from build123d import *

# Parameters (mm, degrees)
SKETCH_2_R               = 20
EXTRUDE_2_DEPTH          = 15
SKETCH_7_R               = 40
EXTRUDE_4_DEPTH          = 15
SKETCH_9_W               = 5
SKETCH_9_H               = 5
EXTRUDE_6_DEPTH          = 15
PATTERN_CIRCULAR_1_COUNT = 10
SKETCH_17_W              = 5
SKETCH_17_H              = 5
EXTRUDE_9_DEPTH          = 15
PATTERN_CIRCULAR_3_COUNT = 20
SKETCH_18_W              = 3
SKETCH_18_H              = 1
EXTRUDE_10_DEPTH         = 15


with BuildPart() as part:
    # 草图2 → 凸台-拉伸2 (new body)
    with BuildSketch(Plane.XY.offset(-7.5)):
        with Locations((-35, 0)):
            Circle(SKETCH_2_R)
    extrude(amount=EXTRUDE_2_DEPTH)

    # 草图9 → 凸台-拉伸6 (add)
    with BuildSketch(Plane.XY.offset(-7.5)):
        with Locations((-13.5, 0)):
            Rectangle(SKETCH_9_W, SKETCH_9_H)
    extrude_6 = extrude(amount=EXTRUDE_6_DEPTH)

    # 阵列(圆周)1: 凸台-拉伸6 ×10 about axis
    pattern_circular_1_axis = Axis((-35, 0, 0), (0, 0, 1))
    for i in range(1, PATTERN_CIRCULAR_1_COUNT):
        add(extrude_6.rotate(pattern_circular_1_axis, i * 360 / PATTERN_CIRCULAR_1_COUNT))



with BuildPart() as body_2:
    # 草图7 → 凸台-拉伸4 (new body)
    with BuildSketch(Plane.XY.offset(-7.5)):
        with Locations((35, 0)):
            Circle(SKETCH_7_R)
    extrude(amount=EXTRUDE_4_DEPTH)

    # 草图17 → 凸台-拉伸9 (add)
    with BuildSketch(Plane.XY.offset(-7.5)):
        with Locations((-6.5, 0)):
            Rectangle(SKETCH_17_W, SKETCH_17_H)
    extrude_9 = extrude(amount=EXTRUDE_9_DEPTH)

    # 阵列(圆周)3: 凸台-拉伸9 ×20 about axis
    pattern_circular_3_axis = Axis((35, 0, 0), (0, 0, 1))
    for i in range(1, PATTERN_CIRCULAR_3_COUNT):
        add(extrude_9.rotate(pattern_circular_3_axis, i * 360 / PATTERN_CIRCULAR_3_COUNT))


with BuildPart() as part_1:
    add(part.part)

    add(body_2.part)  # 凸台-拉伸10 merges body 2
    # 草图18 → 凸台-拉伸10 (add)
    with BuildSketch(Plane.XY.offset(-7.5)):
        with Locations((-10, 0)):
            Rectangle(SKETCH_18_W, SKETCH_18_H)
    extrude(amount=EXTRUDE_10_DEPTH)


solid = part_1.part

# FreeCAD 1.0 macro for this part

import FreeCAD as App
import Part
import Sketcher
from FreeCAD import Vector


def add_polygon(sketch, points):
    """Adds a closed chain of lines whose ends are joined by coincident constraints."""
    first, n = sketch.GeometryCount, len(points)
    for a, b in zip(points, points[1:] + points[:1]):
        sketch.addGeometry(Part.LineSegment(App.Vector(*a, 0), App.Vector(*b, 0)), False)
    for i in range(n):
        sketch.addConstraint(Sketcher.Constraint("Coincident", first + i, 2, first + (i + 1) % n, 1))

doc = App.newDocument("Part")
body = doc.addObject("PartDesign::Body", "Body")

# Sketch on XY plane
sketch1 = doc.addObject("Sketcher::SketchObject", "Sketch")
body.addObject(sketch1)
sketch1.AttachmentSupport = (doc.XY_Plane, [""])
sketch1.MapMode = "FlatFace"
sketch1.AttachmentOffset = App.Placement(Vector(0, 0, -7.5), App.Rotation())
sketch1.addGeometry(Part.Circle(Vector(-35, 0, 0), Vector(0, 0, 1), 20), False)
sketch1.addConstraint([
    Sketcher.Constraint("PointOnObject", 0, 3, -1),
    Sketcher.Constraint("Diameter", 0, 40.0),
    Sketcher.Constraint("DistanceX", 0, 3, -1, 1, 35.0),
])
pad1 = doc.addObject("PartDesign::Pad", "Pad")
body.addObject(pad1)
pad1.Profile = sketch1
pad1.Length = 15

# Sketch on XY plane
sketch2 = doc.addObject("Sketcher::SketchObject", "Sketch001")
body.addObject(sketch2)
sketch2.AttachmentSupport = (doc.XY_Plane, [""])
sketch2.MapMode = "FlatFace"
sketch2.AttachmentOffset = App.Placement(Vector(0, 0, -7.5), App.Rotation())
add_polygon(sketch2, [(-16, 2), (-16, -2), (-11, -2), (-11, 2)])  # lines 0-3
sketch2.addConstraint([
    Sketcher.Constraint("Vertical", 0),
    Sketcher.Constraint("Horizontal", 1),
    Sketcher.Constraint("Vertical", 2),
    Sketcher.Constraint("Horizontal", 3),
    Sketcher.Constraint("Equal", 3, 0),
    Sketcher.Constraint("DistanceX", 1, 1, 1, 2, 5.0),
    Sketcher.Constraint("DistanceX", 0, 2, -1, 1, 16.0),
    Sketcher.Constraint("DistanceY", 0, 2, -1, 1, 2.5),
])
pad2 = doc.addObject("PartDesign::Pad", "Pad001")
body.addObject(pad2)
pad2.Profile = sketch2
pad2.Length = 15
doc.recompute()

datumline = doc.addObject("PartDesign::Line", "DatumLine")
body.addObject(datumline)
datumline.Placement = App.Placement(Vector(-35, 0, 0), App.Rotation(Vector(0, 0, 1), Vector(0, 0, 1)))
polarpattern = doc.addObject("PartDesign::PolarPattern", "PolarPattern")
body.addObject(polarpattern)
polarpattern.Originals = [pad2]
polarpattern.Axis = (datumline, [""])
polarpattern.Angle = 360
polarpattern.Occurrences = 10
body.Tip = polarpattern
body2 = doc.addObject("PartDesign::Body", "Body001")

# Sketch on XY plane
sketch3 = doc.addObject("Sketcher::SketchObject", "Sketch002")
body2.addObject(sketch3)
sketch3.AttachmentSupport = (doc.getObject("XY_Plane001"), [""])
sketch3.MapMode = "FlatFace"
sketch3.AttachmentOffset = App.Placement(Vector(0, 0, -7.5), App.Rotation())
sketch3.addGeometry(Part.Circle(Vector(35, 0, 0), Vector(0, 0, 1), 40), False)
sketch3.addConstraint([
    Sketcher.Constraint("PointOnObject", 0, 3, -1),
    Sketcher.Constraint("Diameter", 0, 80.0),
    Sketcher.Constraint("DistanceX", -1, 1, 0, 3, 35.0),
])
pad3 = doc.addObject("PartDesign::Pad", "Pad002")
body2.addObject(pad3)
pad3.Profile = sketch3
pad3.Length = 15

# Sketch on XY plane
sketch4 = doc.addObject("Sketcher::SketchObject", "Sketch003")
body2.addObject(sketch4)
sketch4.AttachmentSupport = (doc.getObject("XY_Plane001"), [""])
sketch4.MapMode = "FlatFace"
sketch4.AttachmentOffset = App.Placement(Vector(0, 0, -7.5), App.Rotation())
add_polygon(sketch4, [(-9, 2), (-9, -2), (-4, -2), (-4, 2)])  # lines 0-3
sketch4.addConstraint([
    Sketcher.Constraint("Vertical", 0),
    Sketcher.Constraint("Horizontal", 1),
    Sketcher.Constraint("Vertical", 2),
    Sketcher.Constraint("Horizontal", 3),
    Sketcher.Constraint("Equal", 3, 0),
    Sketcher.Constraint("DistanceX", 1, 1, 1, 2, 5.0),
    Sketcher.Constraint("DistanceX", 0, 2, -1, 1, 9.0),
    Sketcher.Constraint("DistanceY", 0, 2, -1, 1, 2.5),
])
pad4 = doc.addObject("PartDesign::Pad", "Pad003")
body2.addObject(pad4)
pad4.Profile = sketch4
pad4.Length = 15
doc.recompute()

datumline2 = doc.addObject("PartDesign::Line", "DatumLine001")
body2.addObject(datumline2)
datumline2.Placement = App.Placement(Vector(35, 0, 0), App.Rotation(Vector(0, 0, 1), Vector(0, 0, 1)))
polarpattern2 = doc.addObject("PartDesign::PolarPattern", "PolarPattern001")
body2.addObject(polarpattern2)
polarpattern2.Originals = [pad4]
polarpattern2.Axis = (datumline2, [""])
polarpattern2.Angle = 360
polarpattern2.Occurrences = 20
body2.Tip = polarpattern2
body.AllowCompound = True
doc.recompute()

boolean = doc.addObject("PartDesign::Boolean", "Boolean")
body.addObject(boolean)
boolean.Type = "Fuse"
boolean.addObjects([body2])

# Sketch on XY plane
sketch5 = doc.addObject("Sketcher::SketchObject", "Sketch004")
body.addObject(sketch5)
sketch5.AttachmentSupport = (doc.XY_Plane, [""])
sketch5.MapMode = "FlatFace"
sketch5.AttachmentOffset = App.Placement(Vector(0, 0, -7.5), App.Rotation())
add_polygon(sketch5, [(-11.5, 0.5), (-11.5, -0.5), (-8.5, -0.5), (-8.5, 0.5)])  # lines 0-3
sketch5.addConstraint([
    Sketcher.Constraint("Vertical", 0),
    Sketcher.Constraint("Horizontal", 1),
    Sketcher.Constraint("Vertical", 2),
    Sketcher.Constraint("Horizontal", 3),
    Sketcher.Constraint("DistanceX", 1, 1, 1, 2, 3.0),
    Sketcher.Constraint("DistanceY", 0, 2, 0, 1, 1.0),
    Sketcher.Constraint("DistanceX", 0, 2, -1, 1, 11.5),
    Sketcher.Constraint("DistanceY", 0, 2, -1, 1, 0.5),
])
pad5 = doc.addObject("PartDesign::Pad", "Pad004")
body.addObject(pad5)
pad5.Profile = sketch5
pad5.Length = 15

doc.recompute()
